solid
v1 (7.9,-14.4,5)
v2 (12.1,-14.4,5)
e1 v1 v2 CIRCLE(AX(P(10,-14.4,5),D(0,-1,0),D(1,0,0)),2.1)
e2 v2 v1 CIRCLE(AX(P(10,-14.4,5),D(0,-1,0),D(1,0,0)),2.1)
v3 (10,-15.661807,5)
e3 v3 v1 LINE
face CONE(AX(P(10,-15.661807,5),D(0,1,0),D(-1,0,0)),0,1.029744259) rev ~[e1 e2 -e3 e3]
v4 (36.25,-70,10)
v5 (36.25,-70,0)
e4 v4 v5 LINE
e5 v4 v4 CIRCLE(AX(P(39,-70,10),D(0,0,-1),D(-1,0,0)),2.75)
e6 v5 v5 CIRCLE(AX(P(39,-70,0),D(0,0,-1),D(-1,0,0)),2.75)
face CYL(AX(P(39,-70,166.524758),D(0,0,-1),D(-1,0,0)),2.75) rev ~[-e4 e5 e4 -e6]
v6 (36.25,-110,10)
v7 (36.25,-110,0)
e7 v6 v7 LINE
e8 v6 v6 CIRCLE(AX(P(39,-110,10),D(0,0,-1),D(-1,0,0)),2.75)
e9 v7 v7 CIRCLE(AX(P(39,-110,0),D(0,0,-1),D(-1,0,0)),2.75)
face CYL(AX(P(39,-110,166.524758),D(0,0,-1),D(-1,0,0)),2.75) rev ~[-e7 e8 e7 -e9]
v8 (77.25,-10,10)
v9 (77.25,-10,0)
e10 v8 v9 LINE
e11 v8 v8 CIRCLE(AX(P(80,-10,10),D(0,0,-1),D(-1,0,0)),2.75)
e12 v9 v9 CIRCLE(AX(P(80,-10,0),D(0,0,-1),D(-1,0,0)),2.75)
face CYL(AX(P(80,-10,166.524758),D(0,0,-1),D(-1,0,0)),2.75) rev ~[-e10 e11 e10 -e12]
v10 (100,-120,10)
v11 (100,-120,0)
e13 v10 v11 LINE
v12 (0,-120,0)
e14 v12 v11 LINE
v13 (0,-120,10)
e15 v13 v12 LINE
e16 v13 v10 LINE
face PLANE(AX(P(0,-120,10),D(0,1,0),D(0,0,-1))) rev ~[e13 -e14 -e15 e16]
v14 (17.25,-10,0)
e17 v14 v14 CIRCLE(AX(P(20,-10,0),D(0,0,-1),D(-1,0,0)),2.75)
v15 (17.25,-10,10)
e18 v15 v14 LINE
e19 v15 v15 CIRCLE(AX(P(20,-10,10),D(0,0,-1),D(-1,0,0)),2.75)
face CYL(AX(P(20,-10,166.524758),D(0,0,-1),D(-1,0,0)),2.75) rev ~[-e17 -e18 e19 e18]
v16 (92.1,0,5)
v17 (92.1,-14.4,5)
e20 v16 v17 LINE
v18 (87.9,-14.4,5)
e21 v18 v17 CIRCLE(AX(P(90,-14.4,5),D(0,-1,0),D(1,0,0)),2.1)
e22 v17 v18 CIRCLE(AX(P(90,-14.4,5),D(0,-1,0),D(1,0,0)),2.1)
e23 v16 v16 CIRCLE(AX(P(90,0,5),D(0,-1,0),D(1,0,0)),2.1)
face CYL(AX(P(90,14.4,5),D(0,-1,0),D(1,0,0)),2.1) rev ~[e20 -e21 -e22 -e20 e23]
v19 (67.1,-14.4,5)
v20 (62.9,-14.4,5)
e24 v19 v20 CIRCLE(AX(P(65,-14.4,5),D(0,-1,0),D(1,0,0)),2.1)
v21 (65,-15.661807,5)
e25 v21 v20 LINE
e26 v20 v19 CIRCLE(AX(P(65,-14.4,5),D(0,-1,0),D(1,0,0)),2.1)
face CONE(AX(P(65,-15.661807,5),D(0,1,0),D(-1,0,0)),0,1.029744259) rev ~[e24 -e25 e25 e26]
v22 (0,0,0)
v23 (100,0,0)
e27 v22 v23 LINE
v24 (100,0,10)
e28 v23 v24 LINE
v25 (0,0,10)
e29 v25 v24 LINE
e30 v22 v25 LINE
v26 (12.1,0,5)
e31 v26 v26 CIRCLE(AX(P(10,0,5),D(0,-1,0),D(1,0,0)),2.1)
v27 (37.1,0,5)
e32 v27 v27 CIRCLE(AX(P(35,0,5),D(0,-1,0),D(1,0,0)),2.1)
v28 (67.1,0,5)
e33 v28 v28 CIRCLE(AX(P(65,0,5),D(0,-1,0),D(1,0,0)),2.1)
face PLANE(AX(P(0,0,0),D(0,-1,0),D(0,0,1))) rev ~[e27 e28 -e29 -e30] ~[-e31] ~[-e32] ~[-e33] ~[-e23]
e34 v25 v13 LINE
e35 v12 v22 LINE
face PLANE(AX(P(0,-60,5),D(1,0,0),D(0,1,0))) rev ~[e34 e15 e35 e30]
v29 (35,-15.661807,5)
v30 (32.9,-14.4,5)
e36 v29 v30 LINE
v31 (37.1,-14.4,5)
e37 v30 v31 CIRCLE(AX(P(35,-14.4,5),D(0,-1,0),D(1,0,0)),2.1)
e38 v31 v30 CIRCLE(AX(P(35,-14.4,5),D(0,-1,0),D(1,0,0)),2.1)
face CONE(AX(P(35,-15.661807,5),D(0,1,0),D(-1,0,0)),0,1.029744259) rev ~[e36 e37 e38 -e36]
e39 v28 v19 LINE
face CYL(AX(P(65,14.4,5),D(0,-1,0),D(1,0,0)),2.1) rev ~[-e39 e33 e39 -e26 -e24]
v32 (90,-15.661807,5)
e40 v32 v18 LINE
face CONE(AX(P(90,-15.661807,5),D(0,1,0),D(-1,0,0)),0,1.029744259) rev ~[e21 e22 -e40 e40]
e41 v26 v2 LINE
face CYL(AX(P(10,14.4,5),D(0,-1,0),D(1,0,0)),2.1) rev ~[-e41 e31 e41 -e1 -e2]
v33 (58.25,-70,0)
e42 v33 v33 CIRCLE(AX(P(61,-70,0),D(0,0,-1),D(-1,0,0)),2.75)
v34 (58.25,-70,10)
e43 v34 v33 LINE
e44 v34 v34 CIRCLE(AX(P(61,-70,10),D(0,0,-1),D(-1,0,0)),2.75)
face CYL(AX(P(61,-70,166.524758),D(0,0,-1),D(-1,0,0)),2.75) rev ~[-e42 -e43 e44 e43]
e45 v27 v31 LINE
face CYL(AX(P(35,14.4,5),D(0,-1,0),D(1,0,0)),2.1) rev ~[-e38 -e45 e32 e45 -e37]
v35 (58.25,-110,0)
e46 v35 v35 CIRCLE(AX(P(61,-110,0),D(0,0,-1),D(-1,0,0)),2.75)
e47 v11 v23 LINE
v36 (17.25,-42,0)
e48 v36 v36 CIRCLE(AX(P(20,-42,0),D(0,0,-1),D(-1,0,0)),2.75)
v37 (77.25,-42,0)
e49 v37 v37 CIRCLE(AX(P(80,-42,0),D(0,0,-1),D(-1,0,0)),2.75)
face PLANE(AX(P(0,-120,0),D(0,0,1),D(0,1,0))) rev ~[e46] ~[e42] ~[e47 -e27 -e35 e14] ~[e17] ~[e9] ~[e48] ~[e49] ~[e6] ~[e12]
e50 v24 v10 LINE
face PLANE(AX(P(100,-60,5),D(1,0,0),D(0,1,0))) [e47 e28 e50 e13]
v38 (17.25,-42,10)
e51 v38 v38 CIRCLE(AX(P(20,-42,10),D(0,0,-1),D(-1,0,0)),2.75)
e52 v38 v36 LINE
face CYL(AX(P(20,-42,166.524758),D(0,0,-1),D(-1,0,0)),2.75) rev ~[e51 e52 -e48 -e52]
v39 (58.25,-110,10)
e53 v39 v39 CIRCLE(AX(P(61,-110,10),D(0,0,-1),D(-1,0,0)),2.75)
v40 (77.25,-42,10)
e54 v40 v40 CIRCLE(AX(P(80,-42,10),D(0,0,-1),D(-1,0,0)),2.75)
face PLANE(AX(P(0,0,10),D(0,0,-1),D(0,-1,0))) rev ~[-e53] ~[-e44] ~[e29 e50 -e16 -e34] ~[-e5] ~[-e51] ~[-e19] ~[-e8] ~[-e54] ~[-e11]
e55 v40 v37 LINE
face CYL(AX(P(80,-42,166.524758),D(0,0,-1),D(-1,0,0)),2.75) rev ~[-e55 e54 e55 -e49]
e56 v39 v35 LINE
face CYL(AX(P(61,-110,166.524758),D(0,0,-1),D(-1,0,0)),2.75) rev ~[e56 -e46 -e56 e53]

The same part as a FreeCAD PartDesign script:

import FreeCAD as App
import Part
import Sketcher

V = App.Vector


def add_polygon(sketch, points):
    """Adds a closed chain of lines whose ends are joined by coincident constraints."""
    first, n = sketch.GeometryCount, len(points)
    for a, b in zip(points, points[1:] + points[:1]):
        sketch.addGeometry(Part.LineSegment(App.Vector(*a, 0), App.Vector(*b, 0)), False)
    for i in range(n):
        sketch.addConstraint(Sketcher.Constraint("Coincident", first + i, 2, first + (i + 1) % n, 1))

doc = App.newDocument("Part")
params = doc.addObject("Spreadsheet::Sheet", "Params")
for row, (alias, value) in enumerate([
    ("sketch1_width", "120 mm"),
    ("sketch1_height", "10 mm"),
    ("pad1_length", "100 mm"),
    ("sketch2_diameter", "5.5 mm"),
    ("hole_diameter", "5.5 mm"),
    ("sketch3_diameter", "4.2 mm"),
    ("hole2_diameter", "4.2 mm"),
    ("hole2_depth", "14.4 mm"),
], start=1):
    params.set(f"A{row}", alias)
    params.set(f"B{row}", "=" + value)
    params.setAlias(f"B{row}", alias)

body = doc.addObject("PartDesign::Body", "Body")

# Sketch on YZ plane
sketch1 = body.newObject("Sketcher::SketchObject", "Sketch")
sketch1.AttachmentSupport = (doc.getObject("YZ_Plane"), [""])
sketch1.MapMode = "FlatFace"
add_polygon(sketch1, [(-120, 0), (0, 0), (0, 10), (-120, 10)])  # lines 0-3
sketch1.addConstraint([
    Sketcher.Constraint("Horizontal", 0),
    Sketcher.Constraint("Vertical", 1),
    Sketcher.Constraint("Horizontal", 2),
    Sketcher.Constraint("Vertical", 3),
    Sketcher.Constraint("Coincident", 0, 2, -1, 1),
    Sketcher.Constraint("DistanceX", 0, 1, 0, 2, 120.0),
    Sketcher.Constraint("DistanceY", 1, 1, 1, 2, 10.0),
])
sketch1.setExpression("Constraints[9]", "Params.sketch1_width")
sketch1.setExpression("Constraints[10]", "Params.sketch1_height")
pad1 = body.newObject("PartDesign::Pad", "Pad")
pad1.Profile = sketch1
pad1.setExpression("Length", "Params.pad1_length")

# Sketch on XY plane
sketch2 = body.newObject("Sketcher::SketchObject", "Sketch001")
sketch2.AttachmentSupport = (doc.getObject("XY_Plane"), [""])
sketch2.MapMode = "FlatFace"
sketch2.AttachmentOffset = App.Placement(V(0, 0, 10), App.Rotation())
sketch2.addGeometry([
    Part.Circle(V(80, -10, 0), V(0, 0, 1), 2.8),  # 0
    Part.Circle(V(80, -42, 0), V(0, 0, 1), 2.8),  # 1
    Part.Circle(V(20, -42, 0), V(0, 0, 1), 2.8),  # 2
    Part.Circle(V(20, -10, 0), V(0, 0, 1), 2.8),  # 3
    Part.Circle(V(39, -70, 0), V(0, 0, 1), 2.8),  # 4
    Part.Circle(V(61, -70, 0), V(0, 0, 1), 2.8),  # 5
    Part.Circle(V(61, -110, 0), V(0, 0, 1), 2.8),  # 6
    Part.Circle(V(39, -110, 0), V(0, 0, 1), 2.8),  # 7
], False)
sketch2.addConstraint([
    Sketcher.Constraint("Equal", 0, 1),
    Sketcher.Constraint("Equal", 1, 2),
    Sketcher.Constraint("Equal", 2, 3),
    Sketcher.Constraint("Equal", 3, 4),
    Sketcher.Constraint("Equal", 4, 5),
    Sketcher.Constraint("Equal", 5, 6),
    Sketcher.Constraint("Equal", 6, 7),
    Sketcher.Constraint("Horizontal", 1, 3, 2, 3),
    Sketcher.Constraint("Horizontal", 0, 3, 3, 3),
    Sketcher.Constraint("Horizontal", 4, 3, 5, 3),
    Sketcher.Constraint("Horizontal", 6, 3, 7, 3),
    Sketcher.Constraint("Vertical", 0, 3, 1, 3),
    Sketcher.Constraint("Vertical", 2, 3, 3, 3),
    Sketcher.Constraint("Vertical", 5, 3, 6, 3),
    Sketcher.Constraint("Vertical", 4, 3, 7, 3),
    Sketcher.Constraint("Diameter", 0, 5.5),
    Sketcher.Constraint("DistanceX", -1, 1, 0, 3, 80.0),
    Sketcher.Constraint("DistanceY", 0, 3, -1, 1, 10.0),
    Sketcher.Constraint("DistanceY", 1, 3, -1, 1, 42.0),
    Sketcher.Constraint("DistanceX", -1, 1, 2, 3, 20.0),
    Sketcher.Constraint("DistanceX", -1, 1, 4, 3, 39.0),
    Sketcher.Constraint("DistanceY", 4, 3, -1, 1, 70.0),
    Sketcher.Constraint("DistanceX", -1, 1, 5, 3, 61.0),
    Sketcher.Constraint("DistanceY", 6, 3, -1, 1, 110.0),
])
sketch2.setExpression("Constraints[15]", "Params.sketch2_diameter")
doc.recompute()
hole = body.newObject("PartDesign::Hole", "Hole")
hole.Profile = sketch2
hole.ThreadType = "None"
hole.setExpression("Diameter", "Params.hole_diameter")
hole.DepthType = "ThroughAll"

# Sketch on XZ plane
sketch3 = body.newObject("Sketcher::SketchObject", "Sketch002")
sketch3.AttachmentSupport = (doc.getObject("XZ_Plane"), [""])
sketch3.MapMode = "FlatFace"
sketch3.addGeometry([
    Part.Circle(V(90, 5, 0), V(0, 0, 1), 2.1),
    Part.Circle(V(65, 5, 0), V(0, 0, 1), 2.1),
    Part.Circle(V(35, 5, 0), V(0, 0, 1), 2.1),
    Part.Circle(V(10, 5, 0), V(0, 0, 1), 2.1),
], False)
sketch3.addConstraint([
    Sketcher.Constraint("Equal", 0, 1),
    Sketcher.Constraint("Equal", 1, 2),
    Sketcher.Constraint("Equal", 2, 3),
    Sketcher.Constraint("Horizontal", 0, 3, 1, 3),
    Sketcher.Constraint("Horizontal", 1, 3, 2, 3),
    Sketcher.Constraint("Horizontal", 2, 3, 3, 3),
    Sketcher.Constraint("Diameter", 0, 4.2),
    Sketcher.Constraint("DistanceX", -1, 1, 0, 3, 90.0),
    Sketcher.Constraint("DistanceY", -1, 1, 0, 3, 5.0),
    Sketcher.Constraint("DistanceX", -1, 1, 1, 3, 65.0),
    Sketcher.Constraint("DistanceX", -1, 1, 2, 3, 35.0),
    Sketcher.Constraint("DistanceX", -1, 1, 3, 3, 10.0),
])
sketch3.setExpression("Constraints[6]", "Params.sketch3_diameter")
doc.recompute()
hole2 = body.newObject("PartDesign::Hole", "Hole001")
hole2.Profile = sketch3
hole2.ThreadType = "None"
hole2.setExpression("Diameter", "Params.hole2_diameter")
hole2.DepthType = "Dimension"
hole2.setExpression("Depth", "Params.hole2_depth")
hole2.DrillPoint = "Angled"
hole2.DrillPointAngle = 118
hole2.Reversed = True

doc.recompute()
